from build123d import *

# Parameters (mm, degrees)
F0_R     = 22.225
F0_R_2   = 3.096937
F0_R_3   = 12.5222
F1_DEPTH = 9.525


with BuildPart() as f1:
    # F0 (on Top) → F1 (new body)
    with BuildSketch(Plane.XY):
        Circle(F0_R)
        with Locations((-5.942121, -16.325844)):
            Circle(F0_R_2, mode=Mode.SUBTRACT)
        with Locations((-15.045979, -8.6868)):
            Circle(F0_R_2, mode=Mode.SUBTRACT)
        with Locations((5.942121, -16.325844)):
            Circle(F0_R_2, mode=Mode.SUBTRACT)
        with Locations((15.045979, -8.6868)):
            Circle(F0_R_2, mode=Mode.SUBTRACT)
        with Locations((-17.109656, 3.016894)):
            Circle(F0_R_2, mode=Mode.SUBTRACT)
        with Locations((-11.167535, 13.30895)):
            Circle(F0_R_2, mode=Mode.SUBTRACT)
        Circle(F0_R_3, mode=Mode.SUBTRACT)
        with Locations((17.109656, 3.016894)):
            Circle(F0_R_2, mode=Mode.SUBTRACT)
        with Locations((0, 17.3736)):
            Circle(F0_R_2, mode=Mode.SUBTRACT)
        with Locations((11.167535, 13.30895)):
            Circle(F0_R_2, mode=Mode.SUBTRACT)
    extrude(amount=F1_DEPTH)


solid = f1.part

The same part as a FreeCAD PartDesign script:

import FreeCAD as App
import Part
import Sketcher
Q = App.Units.Quantity

doc = App.newDocument("Part")
body = doc.addObject("PartDesign::Body", "Body")

# Sketch on XY plane
sketch1 = doc.addObject("Sketcher::SketchObject", "Sketch")
body.addObject(sketch1)
sketch1.AttachmentSupport = (doc.XY_Plane, [""])
sketch1.MapMode = "FlatFace"
sketch1.addGeometry(Part.Circle(App.Vector(0, 0, 0), App.Vector(0, 0, 1), 22.225), False)
sketch1.addGeometry(Part.Circle(App.Vector(-5.942121, -16.325844, 0), App.Vector(0, 0, 1), 3.096937), False)
sketch1.addGeometry(Part.Circle(App.Vector(-15.045979, -8.6868, 0), App.Vector(0, 0, 1), 3.096937), False)
sketch1.addGeometry(Part.Circle(App.Vector(5.942121, -16.325844, 0), App.Vector(0, 0, 1), 3.096937), False)
sketch1.addGeometry(Part.Circle(App.Vector(0, 0, 0), App.Vector(0, 0, 1), 12.5222), False)
sketch1.addGeometry(Part.Circle(App.Vector(15.045979, -8.6868, 0), App.Vector(0, 0, 1), 3.096937), False)
sketch1.addGeometry(Part.Circle(App.Vector(-17.109656, 3.016894, 0), App.Vector(0, 0, 1), 3.096937), False)
sketch1.addGeometry(Part.Circle(App.Vector(-11.167535, 13.30895, 0), App.Vector(0, 0, 1), 3.096937), False)
sketch1.addGeometry(Part.Circle(App.Vector(17.109656, 3.016894, 0), App.Vector(0, 0, 1), 3.096937), False)
sketch1.addGeometry(Part.Circle(App.Vector(0, 17.3736, 0), App.Vector(0, 0, 1), 3.096937), False)
sketch1.addGeometry(Part.Circle(App.Vector(11.167535, 13.30895, 0), App.Vector(0, 0, 1), 3.096937), False)
sketch1.addConstraint(Sketcher.Constraint("Coincident", 0, 3, -1, 1))
sketch1.addConstraint(Sketcher.Constraint("Coincident", 4, 3, -1, 1))
sketch1.addConstraint(Sketcher.Constraint("Equal", 1, 2))
sketch1.addConstraint(Sketcher.Constraint("Equal", 2, 3))
sketch1.addConstraint(Sketcher.Constraint("Equal", 3, 5))
sketch1.addConstraint(Sketcher.Constraint("Equal", 5, 6))
sketch1.addConstraint(Sketcher.Constraint("Equal", 6, 7))
sketch1.addConstraint(Sketcher.Constraint("Equal", 7, 8))
sketch1.addConstraint(Sketcher.Constraint("Equal", 8, 9))
sketch1.addConstraint(Sketcher.Constraint("Equal", 9, 10))
sketch1.addConstraint(Sketcher.Constraint("Symmetric", 1, 3, 3, 3, -2))
sketch1.addConstraint(Sketcher.Constraint("Symmetric", 2, 3, 5, 3, -2))
sketch1.addConstraint(Sketcher.Constraint("Symmetric", 6, 3, 8, 3, -2))
sketch1.addConstraint(Sketcher.Constraint("Symmetric", 7, 3, 10, 3, -2))
sketch1.addConstraint(Sketcher.Constraint("PointOnObject", 9, 3, -2))
sketch1.addConstraint(Sketcher.Constraint("Diameter", 0, Q("1.75 in")))
sketch1.addConstraint(Sketcher.Constraint("Diameter", 4, Q("0.986 in")))
sketch1.addConstraint(Sketcher.Constraint("DistanceY", 2, 3, -1, 1, Q("0.342 in")))
sketch1.addConstraint(Sketcher.Constraint("DistanceY", -1, 1, 9, 3, Q("0.684 in")))
sketch1.addConstraint(Sketcher.Constraint("Diameter", 1, Q("6.193874 mm")))
sketch1.addConstraint(Sketcher.Constraint("DistanceX", 2, 3, 3, 3, Q("20.9881 mm")))
sketch1.addConstraint(Sketcher.Constraint("DistanceX", 1, 3, -1, 1, Q("5.942121 mm")))
sketch1.addConstraint(Sketcher.Constraint("DistanceY", -1, 1, 7, 3, Q("13.30895 mm")))
sketch1.addConstraint(Sketcher.Constraint("DistanceY", 1, 3, 6, 3, Q("19.342738 mm")))
sketch1.addConstraint(Sketcher.Constraint("DistanceX", 6, 3, 7, 3, Q("5.942121 mm")))
sketch1.addConstraint(Sketcher.Constraint("DistanceY", 1, 3, -1, 1, Q("16.325844 mm")))
sketch1.addConstraint(Sketcher.Constraint("DistanceX", 6, 3, -1, 1, Q("17.109656 mm")))
pad1 = doc.addObject("PartDesign::Pad", "Pad")
body.addObject(pad1)
pad1.Profile = sketch1
pad1.Length = Q("0.375 in")

doc.recompute()
